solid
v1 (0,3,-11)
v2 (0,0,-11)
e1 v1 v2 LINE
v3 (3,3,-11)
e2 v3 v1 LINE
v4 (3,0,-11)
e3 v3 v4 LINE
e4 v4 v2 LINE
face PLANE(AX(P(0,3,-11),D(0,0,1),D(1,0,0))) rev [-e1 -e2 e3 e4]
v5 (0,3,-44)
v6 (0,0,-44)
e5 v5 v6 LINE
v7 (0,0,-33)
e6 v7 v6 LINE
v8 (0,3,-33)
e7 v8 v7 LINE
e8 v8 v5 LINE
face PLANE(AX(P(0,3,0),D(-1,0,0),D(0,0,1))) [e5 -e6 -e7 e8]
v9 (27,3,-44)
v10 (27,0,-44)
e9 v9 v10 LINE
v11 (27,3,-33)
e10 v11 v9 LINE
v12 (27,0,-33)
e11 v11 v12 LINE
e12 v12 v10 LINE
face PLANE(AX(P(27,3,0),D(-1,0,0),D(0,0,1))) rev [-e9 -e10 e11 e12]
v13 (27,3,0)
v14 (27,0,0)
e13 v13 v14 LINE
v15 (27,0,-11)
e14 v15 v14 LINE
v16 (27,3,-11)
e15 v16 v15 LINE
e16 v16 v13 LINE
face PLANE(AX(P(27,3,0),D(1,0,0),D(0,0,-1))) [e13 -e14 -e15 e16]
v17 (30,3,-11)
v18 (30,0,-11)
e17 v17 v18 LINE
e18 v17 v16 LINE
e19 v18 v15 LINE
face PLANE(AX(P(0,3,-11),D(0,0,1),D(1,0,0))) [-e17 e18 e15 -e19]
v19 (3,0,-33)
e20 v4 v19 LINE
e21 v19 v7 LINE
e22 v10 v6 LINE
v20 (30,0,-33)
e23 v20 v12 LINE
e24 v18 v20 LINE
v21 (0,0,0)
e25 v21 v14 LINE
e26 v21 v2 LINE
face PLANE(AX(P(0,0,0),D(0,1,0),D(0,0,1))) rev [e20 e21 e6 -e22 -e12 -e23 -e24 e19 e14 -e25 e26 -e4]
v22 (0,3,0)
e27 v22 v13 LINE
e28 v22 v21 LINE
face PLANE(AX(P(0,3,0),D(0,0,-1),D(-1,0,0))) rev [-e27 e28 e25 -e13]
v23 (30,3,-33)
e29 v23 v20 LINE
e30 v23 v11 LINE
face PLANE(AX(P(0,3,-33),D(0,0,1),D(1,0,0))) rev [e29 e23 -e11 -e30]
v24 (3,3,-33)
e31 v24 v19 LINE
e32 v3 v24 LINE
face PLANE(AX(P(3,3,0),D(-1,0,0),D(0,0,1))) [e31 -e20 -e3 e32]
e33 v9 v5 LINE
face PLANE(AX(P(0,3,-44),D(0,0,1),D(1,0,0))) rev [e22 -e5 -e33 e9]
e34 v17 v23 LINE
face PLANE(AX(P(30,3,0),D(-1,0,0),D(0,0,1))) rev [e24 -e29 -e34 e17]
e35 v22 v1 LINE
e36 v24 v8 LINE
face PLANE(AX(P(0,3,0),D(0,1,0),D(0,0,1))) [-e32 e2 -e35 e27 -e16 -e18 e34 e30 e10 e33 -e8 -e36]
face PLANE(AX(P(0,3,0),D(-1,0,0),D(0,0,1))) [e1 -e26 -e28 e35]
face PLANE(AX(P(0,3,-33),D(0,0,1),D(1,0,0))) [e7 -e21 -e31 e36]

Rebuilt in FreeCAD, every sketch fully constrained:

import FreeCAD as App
import Part
import Sketcher

doc = App.newDocument("Part")
body = doc.addObject("PartDesign::Body", "Body")

# Sketch on XZ plane
sketch1 = body.newObject("Sketcher::SketchObject", "Sketch")
sketch1.AttachmentSupport = (doc.getObject("XZ_Plane"), [""])
sketch1.MapMode = "FlatFace"
sketch1.addGeometry([
    Part.LineSegment(App.Vector(0, -44, 0), App.Vector(0, -33, 0)),  # 0
    Part.LineSegment(App.Vector(0, -33, 0), App.Vector(3, -33, 0)),  # 1
    Part.LineSegment(App.Vector(3, -33, 0), App.Vector(3, -11, 0)),  # 2
    Part.LineSegment(App.Vector(3, -11, 0), App.Vector(0, -11, 0)),  # 3
    Part.LineSegment(App.Vector(0, -11, 0), App.Vector(0, 0, 0)),  # 4
    Part.LineSegment(App.Vector(0, 0, 0), App.Vector(27, 0, 0)),  # 5
    Part.LineSegment(App.Vector(27, 0, 0), App.Vector(27, -11, 0)),  # 6
    Part.LineSegment(App.Vector(27, -11, 0), App.Vector(30, -11, 0)),  # 7
    Part.LineSegment(App.Vector(30, -11, 0), App.Vector(30, -33, 0)),  # 8
    Part.LineSegment(App.Vector(30, -33, 0), App.Vector(27, -33, 0)),  # 9
    Part.LineSegment(App.Vector(27, -33, 0), App.Vector(27, -44, 0)),  # 10
    Part.LineSegment(App.Vector(27, -44, 0), App.Vector(0, -44, 0)),  # 11
], False)
sketch1.addConstraint([
    Sketcher.Constraint("Coincident", 0, 2, 1, 1),
    Sketcher.Constraint("Coincident", 1, 2, 2, 1),
    Sketcher.Constraint("Coincident", 2, 2, 3, 1),
    Sketcher.Constraint("Coincident", 3, 2, 4, 1),
    Sketcher.Constraint("Coincident", 4, 2, 5, 1),
    Sketcher.Constraint("Coincident", 5, 2, 6, 1),
    Sketcher.Constraint("Coincident", 6, 2, 7, 1),
    Sketcher.Constraint("Coincident", 7, 2, 8, 1),
    Sketcher.Constraint("Coincident", 8, 2, 9, 1),
    Sketcher.Constraint("Coincident", 9, 2, 10, 1),
    Sketcher.Constraint("Coincident", 10, 2, 11, 1),
    Sketcher.Constraint("Coincident", 11, 2, 0, 1),
    Sketcher.Constraint("Vertical", 0),
    Sketcher.Constraint("Horizontal", 1),
    Sketcher.Constraint("Vertical", 2),
    Sketcher.Constraint("Horizontal", 3),
    Sketcher.Constraint("Vertical", 4),
    Sketcher.Constraint("Horizontal", 5),
    Sketcher.Constraint("Vertical", 6),
    Sketcher.Constraint("Horizontal", 7),
    Sketcher.Constraint("Vertical", 8),
    Sketcher.Constraint("Horizontal", 9),
    Sketcher.Constraint("Vertical", 10),
    Sketcher.Constraint("Horizontal", 11),
    Sketcher.Constraint("Coincident", 4, 2, -1, 1),
    Sketcher.Constraint("PointOnObject", 0, 2, -2),
    Sketcher.Constraint("Horizontal", 3, 2, 6, 2),
    Sketcher.Constraint("Horizontal", 1, 2, 8, 2),
    Sketcher.Constraint("Vertical", 6, 2, 9, 2),
    Sketcher.Constraint("Equal", 3, 7),
    Sketcher.Constraint("Equal", 0, 4),
    Sketcher.Constraint("DistanceX", 1, 1, 1, 2, 3.0),
    Sketcher.Constraint("DistanceX", 5, 1, 5, 2, 27.0),
    Sketcher.Constraint("DistanceY", 0, 1, 0, 2, 11.0),
    Sketcher.Constraint("DistanceY", 2, 1, 2, 2, 22.0),
])
pad1 = body.newObject("PartDesign::Pad", "Pad")
pad1.Profile = sketch1
pad1.Length = 3
pad1.Reversed = True

doc.recompute()
